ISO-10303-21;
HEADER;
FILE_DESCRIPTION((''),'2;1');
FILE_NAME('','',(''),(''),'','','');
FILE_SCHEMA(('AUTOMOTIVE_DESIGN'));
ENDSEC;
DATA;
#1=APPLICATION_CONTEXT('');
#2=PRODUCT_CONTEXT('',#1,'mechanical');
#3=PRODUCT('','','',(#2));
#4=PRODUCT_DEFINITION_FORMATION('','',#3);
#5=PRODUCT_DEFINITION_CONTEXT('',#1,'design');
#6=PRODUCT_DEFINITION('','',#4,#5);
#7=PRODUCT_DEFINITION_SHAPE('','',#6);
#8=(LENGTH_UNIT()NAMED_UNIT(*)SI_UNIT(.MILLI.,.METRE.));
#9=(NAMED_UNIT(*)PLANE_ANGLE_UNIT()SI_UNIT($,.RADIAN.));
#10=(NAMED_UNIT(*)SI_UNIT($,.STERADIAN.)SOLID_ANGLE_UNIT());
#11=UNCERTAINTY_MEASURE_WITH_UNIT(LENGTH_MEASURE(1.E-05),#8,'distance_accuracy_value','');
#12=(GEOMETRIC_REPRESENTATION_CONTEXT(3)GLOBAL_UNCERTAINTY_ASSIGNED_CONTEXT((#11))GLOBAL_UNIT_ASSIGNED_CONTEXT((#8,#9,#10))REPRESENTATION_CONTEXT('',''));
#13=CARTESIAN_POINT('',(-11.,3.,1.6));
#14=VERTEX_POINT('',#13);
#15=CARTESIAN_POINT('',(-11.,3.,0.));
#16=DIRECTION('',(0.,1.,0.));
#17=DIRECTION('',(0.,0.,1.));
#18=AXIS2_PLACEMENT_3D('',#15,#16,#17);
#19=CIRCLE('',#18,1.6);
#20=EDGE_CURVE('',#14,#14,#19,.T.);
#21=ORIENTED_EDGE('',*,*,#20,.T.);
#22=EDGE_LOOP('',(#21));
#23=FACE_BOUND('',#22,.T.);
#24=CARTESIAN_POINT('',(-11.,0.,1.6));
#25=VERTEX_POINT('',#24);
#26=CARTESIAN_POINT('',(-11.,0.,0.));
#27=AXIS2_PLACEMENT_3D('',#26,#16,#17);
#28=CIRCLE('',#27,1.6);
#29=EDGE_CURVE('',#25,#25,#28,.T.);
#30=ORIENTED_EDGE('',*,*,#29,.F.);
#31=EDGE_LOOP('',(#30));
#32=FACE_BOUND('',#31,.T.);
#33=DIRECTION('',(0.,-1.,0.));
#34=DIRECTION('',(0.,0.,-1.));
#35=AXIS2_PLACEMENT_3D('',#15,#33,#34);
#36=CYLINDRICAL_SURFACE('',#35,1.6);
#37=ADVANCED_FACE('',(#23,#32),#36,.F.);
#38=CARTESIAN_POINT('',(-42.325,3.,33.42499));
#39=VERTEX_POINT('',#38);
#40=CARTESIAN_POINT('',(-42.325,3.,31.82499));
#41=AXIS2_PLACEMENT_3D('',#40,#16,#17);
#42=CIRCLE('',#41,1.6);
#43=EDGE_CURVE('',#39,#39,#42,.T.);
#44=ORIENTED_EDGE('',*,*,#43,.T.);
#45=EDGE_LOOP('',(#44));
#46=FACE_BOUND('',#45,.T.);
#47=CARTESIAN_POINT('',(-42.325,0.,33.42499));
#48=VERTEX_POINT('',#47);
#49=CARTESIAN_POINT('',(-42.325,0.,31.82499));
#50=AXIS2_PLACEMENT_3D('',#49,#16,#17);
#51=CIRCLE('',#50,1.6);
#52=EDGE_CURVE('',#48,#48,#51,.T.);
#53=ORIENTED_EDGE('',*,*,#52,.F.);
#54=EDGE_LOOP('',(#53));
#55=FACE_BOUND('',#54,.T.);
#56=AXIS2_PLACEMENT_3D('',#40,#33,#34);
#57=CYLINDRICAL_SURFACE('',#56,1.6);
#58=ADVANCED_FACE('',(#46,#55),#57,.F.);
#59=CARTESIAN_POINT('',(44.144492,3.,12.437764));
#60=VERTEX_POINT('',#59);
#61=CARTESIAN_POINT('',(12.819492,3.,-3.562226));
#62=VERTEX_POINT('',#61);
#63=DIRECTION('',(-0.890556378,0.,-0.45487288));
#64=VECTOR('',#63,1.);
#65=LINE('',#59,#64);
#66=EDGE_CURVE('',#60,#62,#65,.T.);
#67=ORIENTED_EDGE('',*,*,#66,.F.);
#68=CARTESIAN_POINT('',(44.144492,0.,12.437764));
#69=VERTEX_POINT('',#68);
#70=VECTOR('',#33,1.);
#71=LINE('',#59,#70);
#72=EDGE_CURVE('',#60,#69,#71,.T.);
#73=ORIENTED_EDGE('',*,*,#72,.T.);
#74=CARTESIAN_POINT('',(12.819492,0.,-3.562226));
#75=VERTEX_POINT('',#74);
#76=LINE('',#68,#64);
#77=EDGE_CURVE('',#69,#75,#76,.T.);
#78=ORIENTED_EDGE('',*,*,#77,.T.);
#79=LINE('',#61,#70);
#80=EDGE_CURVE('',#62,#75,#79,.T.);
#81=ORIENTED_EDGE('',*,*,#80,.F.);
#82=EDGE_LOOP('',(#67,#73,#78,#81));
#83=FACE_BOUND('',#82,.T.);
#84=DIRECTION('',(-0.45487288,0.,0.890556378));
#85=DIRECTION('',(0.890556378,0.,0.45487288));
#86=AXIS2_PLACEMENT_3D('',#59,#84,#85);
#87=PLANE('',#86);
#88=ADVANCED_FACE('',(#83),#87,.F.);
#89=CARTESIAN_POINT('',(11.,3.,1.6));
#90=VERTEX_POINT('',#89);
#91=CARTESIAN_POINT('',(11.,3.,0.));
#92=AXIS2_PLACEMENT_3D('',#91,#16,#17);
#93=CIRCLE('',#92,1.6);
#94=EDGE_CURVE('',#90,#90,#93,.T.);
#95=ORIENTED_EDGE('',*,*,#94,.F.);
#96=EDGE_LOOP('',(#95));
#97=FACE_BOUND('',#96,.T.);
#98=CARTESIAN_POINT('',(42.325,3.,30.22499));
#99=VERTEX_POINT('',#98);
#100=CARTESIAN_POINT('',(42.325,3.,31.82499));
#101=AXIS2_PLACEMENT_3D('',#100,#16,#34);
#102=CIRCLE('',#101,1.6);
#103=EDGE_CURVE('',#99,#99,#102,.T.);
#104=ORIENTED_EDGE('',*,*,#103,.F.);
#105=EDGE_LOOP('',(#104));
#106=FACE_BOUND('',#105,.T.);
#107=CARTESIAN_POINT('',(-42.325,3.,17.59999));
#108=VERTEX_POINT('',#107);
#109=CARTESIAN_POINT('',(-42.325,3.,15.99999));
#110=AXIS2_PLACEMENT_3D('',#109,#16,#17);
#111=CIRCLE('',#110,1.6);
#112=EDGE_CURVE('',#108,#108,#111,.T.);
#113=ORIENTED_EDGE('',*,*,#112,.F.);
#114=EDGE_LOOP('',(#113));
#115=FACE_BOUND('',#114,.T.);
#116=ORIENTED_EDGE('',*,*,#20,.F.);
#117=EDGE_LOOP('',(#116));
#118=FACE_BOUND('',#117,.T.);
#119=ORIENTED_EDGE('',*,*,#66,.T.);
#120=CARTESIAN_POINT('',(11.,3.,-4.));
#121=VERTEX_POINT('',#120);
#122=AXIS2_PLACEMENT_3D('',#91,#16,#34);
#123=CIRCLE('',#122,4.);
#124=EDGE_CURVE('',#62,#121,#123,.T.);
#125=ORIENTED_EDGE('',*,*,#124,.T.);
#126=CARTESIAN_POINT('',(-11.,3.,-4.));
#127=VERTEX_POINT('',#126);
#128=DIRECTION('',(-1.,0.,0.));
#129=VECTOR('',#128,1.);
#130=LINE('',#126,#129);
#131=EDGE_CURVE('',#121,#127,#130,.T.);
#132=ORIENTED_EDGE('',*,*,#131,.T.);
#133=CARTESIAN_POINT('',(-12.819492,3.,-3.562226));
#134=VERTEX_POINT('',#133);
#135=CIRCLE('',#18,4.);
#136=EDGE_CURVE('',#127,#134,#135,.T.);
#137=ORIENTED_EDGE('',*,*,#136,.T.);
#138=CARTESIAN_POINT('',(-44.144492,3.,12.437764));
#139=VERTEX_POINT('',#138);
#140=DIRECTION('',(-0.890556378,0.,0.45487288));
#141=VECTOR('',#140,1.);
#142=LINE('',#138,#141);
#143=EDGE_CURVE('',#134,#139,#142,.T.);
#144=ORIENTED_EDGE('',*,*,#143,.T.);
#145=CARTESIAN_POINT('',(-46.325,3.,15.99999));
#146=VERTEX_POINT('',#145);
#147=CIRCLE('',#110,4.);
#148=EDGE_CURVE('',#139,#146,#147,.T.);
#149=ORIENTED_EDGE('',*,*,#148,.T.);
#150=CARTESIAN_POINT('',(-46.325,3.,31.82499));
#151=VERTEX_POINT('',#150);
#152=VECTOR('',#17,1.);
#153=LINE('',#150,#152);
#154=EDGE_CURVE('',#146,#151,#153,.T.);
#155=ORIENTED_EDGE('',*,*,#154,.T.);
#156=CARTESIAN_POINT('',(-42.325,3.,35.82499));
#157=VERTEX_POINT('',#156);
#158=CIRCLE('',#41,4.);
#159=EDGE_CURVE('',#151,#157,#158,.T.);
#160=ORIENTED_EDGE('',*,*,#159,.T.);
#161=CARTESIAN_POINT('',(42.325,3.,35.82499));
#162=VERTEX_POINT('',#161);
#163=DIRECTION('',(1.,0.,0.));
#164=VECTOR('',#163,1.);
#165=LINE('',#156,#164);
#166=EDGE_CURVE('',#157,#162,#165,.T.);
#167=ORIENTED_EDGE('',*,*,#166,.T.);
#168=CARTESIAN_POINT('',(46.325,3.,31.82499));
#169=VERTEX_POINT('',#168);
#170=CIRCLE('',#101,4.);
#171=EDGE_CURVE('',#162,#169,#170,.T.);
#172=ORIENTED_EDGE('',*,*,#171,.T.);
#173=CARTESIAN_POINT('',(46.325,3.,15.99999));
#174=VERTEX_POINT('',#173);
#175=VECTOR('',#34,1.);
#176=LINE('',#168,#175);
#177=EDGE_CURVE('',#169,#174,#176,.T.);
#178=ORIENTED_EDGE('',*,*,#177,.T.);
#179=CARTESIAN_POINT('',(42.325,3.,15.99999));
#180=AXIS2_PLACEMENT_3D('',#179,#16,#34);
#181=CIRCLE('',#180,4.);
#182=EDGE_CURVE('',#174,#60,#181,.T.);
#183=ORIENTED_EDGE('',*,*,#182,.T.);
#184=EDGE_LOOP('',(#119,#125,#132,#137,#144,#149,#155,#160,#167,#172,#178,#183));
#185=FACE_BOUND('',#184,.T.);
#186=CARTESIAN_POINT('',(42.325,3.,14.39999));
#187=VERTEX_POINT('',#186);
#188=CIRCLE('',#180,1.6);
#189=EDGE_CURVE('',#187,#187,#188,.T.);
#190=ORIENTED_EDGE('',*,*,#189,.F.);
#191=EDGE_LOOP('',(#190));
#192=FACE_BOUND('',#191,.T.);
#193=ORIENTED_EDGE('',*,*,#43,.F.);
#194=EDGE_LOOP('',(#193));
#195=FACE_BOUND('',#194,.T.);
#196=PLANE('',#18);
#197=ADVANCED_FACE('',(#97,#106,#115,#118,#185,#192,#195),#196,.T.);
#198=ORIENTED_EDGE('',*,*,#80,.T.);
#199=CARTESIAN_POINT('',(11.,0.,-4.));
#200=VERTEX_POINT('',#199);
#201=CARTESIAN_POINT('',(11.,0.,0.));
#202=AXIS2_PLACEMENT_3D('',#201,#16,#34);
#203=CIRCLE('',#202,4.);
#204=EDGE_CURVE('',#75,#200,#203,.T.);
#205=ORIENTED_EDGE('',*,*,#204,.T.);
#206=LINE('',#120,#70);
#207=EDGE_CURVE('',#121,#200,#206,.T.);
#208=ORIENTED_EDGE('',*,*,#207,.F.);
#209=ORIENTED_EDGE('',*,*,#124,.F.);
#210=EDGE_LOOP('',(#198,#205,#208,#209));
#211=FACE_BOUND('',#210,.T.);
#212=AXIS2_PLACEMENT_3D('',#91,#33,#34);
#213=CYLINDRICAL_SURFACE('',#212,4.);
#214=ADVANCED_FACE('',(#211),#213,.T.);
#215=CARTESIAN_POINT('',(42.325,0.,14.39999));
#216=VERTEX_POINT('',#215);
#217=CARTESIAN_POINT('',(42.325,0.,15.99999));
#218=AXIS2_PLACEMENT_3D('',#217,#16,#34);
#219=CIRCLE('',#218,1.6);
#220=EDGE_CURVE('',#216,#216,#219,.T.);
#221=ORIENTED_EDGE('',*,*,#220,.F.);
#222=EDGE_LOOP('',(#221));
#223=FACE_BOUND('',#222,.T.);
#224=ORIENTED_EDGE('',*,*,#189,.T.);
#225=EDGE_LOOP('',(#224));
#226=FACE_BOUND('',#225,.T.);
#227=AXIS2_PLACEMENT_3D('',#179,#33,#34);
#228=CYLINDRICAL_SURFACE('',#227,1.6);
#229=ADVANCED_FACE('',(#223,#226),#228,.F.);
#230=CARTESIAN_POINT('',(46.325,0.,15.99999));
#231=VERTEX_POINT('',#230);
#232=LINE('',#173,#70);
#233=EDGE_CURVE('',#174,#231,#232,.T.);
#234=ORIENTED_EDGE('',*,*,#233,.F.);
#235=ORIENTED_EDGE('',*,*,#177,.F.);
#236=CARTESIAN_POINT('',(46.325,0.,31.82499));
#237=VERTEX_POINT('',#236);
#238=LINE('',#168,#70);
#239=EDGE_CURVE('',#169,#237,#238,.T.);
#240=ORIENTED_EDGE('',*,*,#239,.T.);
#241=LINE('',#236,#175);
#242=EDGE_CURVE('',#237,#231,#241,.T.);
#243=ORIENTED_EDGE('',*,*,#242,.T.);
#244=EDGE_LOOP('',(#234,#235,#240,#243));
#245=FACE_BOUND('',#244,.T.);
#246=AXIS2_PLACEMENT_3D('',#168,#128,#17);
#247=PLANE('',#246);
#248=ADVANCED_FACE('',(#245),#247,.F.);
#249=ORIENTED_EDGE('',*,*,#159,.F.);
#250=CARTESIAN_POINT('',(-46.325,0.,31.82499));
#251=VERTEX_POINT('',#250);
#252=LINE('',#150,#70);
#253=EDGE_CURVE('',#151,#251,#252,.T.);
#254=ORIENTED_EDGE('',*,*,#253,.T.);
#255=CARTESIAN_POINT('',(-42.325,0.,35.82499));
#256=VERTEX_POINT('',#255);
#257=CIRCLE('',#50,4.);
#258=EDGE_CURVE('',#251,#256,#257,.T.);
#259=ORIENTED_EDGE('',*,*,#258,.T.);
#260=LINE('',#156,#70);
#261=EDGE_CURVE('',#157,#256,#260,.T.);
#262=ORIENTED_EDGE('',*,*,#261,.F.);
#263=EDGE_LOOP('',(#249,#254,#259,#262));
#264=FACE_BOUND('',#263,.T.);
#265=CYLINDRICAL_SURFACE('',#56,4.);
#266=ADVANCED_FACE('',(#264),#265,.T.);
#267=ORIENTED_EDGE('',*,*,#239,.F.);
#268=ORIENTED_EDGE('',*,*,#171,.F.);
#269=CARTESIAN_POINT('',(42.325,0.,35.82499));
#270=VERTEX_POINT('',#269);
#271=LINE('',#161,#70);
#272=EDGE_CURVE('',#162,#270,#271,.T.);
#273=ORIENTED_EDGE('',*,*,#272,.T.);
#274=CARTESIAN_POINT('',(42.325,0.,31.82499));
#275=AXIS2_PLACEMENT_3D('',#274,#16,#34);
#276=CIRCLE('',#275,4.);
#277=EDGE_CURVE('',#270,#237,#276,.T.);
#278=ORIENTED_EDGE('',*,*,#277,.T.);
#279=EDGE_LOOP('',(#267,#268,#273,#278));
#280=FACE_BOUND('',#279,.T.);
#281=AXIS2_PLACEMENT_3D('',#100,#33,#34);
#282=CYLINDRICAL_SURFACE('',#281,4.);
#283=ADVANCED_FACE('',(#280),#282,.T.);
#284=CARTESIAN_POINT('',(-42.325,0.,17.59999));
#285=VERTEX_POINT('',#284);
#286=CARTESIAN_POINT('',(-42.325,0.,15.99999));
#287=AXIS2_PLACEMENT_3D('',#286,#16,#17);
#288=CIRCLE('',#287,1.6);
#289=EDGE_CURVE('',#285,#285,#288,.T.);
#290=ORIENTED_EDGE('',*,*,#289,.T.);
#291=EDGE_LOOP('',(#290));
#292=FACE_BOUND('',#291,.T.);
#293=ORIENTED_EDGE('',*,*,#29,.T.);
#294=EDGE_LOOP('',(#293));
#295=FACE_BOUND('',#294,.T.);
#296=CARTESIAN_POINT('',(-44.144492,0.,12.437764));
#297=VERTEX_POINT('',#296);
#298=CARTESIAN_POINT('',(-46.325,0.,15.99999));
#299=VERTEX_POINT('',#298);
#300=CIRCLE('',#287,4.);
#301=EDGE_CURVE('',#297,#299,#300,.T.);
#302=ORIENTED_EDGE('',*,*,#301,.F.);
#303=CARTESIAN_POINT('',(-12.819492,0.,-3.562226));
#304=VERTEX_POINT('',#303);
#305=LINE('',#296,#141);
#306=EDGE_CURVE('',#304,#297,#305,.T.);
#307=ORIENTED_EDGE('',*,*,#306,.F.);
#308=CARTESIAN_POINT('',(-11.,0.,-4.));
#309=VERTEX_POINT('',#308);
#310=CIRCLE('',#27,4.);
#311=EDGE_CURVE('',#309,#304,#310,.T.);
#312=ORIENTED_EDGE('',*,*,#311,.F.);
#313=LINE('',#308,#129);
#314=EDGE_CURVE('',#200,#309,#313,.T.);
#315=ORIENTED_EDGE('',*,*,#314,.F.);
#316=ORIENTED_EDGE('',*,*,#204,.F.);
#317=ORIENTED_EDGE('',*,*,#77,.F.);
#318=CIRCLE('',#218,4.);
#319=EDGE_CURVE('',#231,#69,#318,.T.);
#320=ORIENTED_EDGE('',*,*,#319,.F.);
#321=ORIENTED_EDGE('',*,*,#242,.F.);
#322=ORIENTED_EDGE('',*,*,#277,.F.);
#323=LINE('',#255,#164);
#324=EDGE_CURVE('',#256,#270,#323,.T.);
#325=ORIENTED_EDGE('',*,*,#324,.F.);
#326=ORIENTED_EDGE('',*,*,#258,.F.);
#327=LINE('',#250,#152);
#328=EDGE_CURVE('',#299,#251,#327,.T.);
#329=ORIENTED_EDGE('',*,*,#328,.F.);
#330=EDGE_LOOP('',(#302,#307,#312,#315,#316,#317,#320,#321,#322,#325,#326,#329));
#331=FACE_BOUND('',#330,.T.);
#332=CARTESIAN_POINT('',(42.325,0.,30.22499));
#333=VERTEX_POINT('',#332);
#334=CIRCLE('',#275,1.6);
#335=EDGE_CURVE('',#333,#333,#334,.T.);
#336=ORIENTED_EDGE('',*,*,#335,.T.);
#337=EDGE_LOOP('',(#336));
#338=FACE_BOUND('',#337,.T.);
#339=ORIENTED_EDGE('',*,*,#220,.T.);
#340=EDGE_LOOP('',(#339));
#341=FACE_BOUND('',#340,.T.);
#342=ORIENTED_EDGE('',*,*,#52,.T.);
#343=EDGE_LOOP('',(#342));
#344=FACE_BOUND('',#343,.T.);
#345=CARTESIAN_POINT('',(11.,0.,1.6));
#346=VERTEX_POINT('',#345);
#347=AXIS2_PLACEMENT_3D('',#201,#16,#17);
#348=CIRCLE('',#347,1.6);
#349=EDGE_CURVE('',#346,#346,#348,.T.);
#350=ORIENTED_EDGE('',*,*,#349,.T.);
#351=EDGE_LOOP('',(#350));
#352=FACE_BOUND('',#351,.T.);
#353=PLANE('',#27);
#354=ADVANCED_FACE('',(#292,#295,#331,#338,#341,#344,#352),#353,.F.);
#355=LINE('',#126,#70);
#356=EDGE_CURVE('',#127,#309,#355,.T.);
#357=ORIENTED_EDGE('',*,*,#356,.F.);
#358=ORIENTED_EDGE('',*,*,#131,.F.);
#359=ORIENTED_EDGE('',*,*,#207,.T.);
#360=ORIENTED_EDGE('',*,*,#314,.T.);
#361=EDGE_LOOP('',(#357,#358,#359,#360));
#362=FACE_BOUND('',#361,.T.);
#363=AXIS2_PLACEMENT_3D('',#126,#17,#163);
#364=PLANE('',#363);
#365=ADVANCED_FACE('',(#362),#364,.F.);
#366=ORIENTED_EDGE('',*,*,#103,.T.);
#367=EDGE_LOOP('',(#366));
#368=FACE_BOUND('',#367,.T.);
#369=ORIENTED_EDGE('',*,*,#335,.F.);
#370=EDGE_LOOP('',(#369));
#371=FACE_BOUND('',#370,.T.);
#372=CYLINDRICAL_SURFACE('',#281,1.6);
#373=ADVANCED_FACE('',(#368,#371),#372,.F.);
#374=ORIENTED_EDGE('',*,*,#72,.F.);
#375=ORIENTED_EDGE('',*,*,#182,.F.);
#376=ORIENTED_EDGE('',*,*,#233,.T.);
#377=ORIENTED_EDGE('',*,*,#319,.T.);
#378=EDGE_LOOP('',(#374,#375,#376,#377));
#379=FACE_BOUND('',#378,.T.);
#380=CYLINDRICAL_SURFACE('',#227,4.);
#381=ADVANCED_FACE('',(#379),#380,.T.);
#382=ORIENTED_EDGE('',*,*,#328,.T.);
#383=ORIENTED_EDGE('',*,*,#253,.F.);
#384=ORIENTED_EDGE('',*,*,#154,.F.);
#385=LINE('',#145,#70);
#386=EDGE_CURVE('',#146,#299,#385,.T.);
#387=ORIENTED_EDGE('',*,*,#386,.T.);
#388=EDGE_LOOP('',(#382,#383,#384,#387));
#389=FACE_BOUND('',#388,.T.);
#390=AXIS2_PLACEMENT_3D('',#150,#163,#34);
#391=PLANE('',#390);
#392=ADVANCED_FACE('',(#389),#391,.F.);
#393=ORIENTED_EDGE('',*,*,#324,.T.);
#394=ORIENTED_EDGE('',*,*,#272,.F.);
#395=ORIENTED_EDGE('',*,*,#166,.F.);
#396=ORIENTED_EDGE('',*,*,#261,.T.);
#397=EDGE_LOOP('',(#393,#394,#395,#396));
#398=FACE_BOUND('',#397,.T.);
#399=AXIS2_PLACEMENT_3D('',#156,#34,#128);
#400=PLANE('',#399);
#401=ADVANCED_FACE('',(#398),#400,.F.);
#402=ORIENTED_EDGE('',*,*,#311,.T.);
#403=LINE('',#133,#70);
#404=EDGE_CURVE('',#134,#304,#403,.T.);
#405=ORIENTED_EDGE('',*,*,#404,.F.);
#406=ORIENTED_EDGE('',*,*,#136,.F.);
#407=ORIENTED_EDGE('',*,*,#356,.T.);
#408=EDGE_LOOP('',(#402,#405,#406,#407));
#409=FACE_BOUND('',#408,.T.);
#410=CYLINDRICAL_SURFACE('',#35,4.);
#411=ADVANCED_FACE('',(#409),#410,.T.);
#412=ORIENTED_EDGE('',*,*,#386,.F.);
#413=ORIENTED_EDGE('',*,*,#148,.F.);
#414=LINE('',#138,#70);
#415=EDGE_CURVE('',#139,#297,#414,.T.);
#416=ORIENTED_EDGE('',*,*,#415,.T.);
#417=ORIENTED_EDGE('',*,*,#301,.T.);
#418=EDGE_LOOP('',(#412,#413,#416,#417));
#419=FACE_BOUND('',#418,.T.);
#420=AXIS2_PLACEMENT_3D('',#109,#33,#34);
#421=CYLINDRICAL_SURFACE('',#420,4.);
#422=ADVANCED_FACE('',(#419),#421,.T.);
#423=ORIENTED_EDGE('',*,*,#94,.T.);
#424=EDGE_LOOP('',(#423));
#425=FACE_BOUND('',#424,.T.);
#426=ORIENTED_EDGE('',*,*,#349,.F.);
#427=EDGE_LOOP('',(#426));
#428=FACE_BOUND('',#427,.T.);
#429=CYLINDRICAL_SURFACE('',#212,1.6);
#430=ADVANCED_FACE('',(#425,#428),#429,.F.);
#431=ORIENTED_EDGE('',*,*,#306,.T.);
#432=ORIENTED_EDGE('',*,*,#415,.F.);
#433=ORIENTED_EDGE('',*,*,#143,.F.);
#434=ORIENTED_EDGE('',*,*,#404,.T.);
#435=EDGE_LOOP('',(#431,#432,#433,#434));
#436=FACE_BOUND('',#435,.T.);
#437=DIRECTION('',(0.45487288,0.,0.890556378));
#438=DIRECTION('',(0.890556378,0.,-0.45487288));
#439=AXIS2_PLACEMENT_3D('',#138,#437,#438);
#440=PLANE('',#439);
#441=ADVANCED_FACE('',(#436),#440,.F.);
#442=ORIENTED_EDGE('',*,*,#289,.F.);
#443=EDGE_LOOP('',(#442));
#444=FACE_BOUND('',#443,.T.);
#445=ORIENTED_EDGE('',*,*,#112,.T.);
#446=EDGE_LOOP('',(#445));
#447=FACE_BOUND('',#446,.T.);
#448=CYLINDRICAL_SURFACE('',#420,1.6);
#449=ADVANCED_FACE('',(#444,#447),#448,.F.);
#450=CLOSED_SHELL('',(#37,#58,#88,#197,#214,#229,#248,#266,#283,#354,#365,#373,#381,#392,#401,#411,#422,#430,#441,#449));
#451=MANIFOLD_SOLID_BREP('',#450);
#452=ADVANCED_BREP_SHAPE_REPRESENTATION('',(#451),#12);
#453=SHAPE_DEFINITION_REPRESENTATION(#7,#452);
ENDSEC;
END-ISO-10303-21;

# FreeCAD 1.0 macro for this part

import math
import FreeCAD as App
import Part
import Sketcher

V = App.Vector

doc = App.newDocument("Part")
body = doc.addObject("PartDesign::Body", "Body")

# Sketch on XZ plane
sketch1 = body.newObject("Sketcher::SketchObject", "Sketch")
sketch1.AttachmentSupport = (doc.getObject("XZ_Plane"), [""])
sketch1.MapMode = "FlatFace"
sketch1.addGeometry(Part.LineSegment(V(-46.3, 16, 0), V(-46.3, 31.8, 0)), False)
sketch1.addGeometry(Part.ArcOfCircle(Part.Circle(V(-42.3, 31.8, 0), V(0, 0, 1), 4), math.radians(90), math.radians(180)), False)
sketch1.addGeometry(Part.LineSegment(V(-42.3, 35.8, 0), V(42.3, 35.8, 0)), False)
sketch1.addGeometry(Part.ArcOfCircle(Part.Circle(V(42.3, 31.8, 0), V(0, 0, 1), 4), math.radians(0), math.radians(90)), False)
sketch1.addGeometry(Part.LineSegment(V(46.3, 31.8, 0), V(46.3, 16, 0)), False)
sketch1.addGeometry(Part.ArcOfCircle(Part.Circle(V(42.3, 16, 0), V(0, 0, 1), 4), math.radians(-63), math.radians(0)), False)
sketch1.addGeometry(Part.LineSegment(V(44.1, 12.4, 0), V(12.8, -3.6, 0)), False)
sketch1.addGeometry(Part.ArcOfCircle(Part.Circle(V(11, 0, 0), V(0, 0, 1), 4), math.radians(-90), math.radians(-63)), False)
sketch1.addGeometry(Part.LineSegment(V(11, -4, 0), V(-11, -4, 0)), False)
sketch1.addGeometry(Part.ArcOfCircle(Part.Circle(V(-11, 0, 0), V(0, 0, 1), 4), math.radians(-117), math.radians(-90)), False)
sketch1.addGeometry(Part.LineSegment(V(-12.8, -3.6, 0), V(-44.1, 12.4, 0)), False)
sketch1.addGeometry(Part.ArcOfCircle(Part.Circle(V(-42.3, 16, 0), V(0, 0, 1), 4), math.radians(180), math.radians(243)), False)
sketch1.addGeometry(Part.Circle(V(42.3, 31.8, 0), V(0, 0, 1), 1.6), False)
sketch1.addGeometry(Part.Circle(V(42.3, 16, 0), V(0, 0, 1), 1.6), False)
sketch1.addGeometry(Part.Circle(V(-42.3, 31.8, 0), V(0, 0, 1), 1.6), False)
sketch1.addGeometry(Part.Circle(V(-42.3, 16, 0), V(0, 0, 1), 1.6), False)
sketch1.addGeometry(Part.Circle(V(11, 0, 0), V(0, 0, 1), 1.6), False)
sketch1.addGeometry(Part.Circle(V(-11, 0, 0), V(0, 0, 1), 1.6), False)
sketch1.addConstraint(Sketcher.Constraint("Tangent", 0, 2, 1, 2))
sketch1.addConstraint(Sketcher.Constraint("Tangent", 1, 1, 2, 1))
sketch1.addConstraint(Sketcher.Constraint("Tangent", 2, 2, 3, 2))
sketch1.addConstraint(Sketcher.Constraint("Tangent", 3, 1, 4, 1))
sketch1.addConstraint(Sketcher.Constraint("Tangent", 4, 2, 5, 2))
sketch1.addConstraint(Sketcher.Constraint("Tangent", 5, 1, 6, 1))
sketch1.addConstraint(Sketcher.Constraint("Tangent", 6, 2, 7, 2))
sketch1.addConstraint(Sketcher.Constraint("Tangent", 7, 1, 8, 1))
sketch1.addConstraint(Sketcher.Constraint("Tangent", 8, 2, 9, 2))
sketch1.addConstraint(Sketcher.Constraint("Tangent", 9, 1, 10, 1))
sketch1.addConstraint(Sketcher.Constraint("Tangent", 10, 2, 11, 2))
sketch1.addConstraint(Sketcher.Constraint("Tangent", 11, 1, 0, 1))
sketch1.addConstraint(Sketcher.Constraint("Vertical", 0))
sketch1.addConstraint(Sketcher.Constraint("Horizontal", 2))
sketch1.addConstraint(Sketcher.Constraint("Vertical", 4))
sketch1.addConstraint(Sketcher.Constraint("Horizontal", 8))
sketch1.addConstraint(Sketcher.Constraint("Coincident", 12, 3, 3, 3))
sketch1.addConstraint(Sketcher.Constraint("Coincident", 13, 3, 5, 3))
sketch1.addConstraint(Sketcher.Constraint("Coincident", 14, 3, 1, 3))
sketch1.addConstraint(Sketcher.Constraint("Coincident", 15, 3, 11, 3))
sketch1.addConstraint(Sketcher.Constraint("Coincident", 16, 3, 7, 3))
sketch1.addConstraint(Sketcher.Constraint("Coincident", 17, 3, 9, 3))
sketch1.addConstraint(Sketcher.Constraint("Equal", 1, 3))
sketch1.addConstraint(Sketcher.Constraint("Equal", 3, 5))
sketch1.addConstraint(Sketcher.Constraint("Equal", 5, 7))
sketch1.addConstraint(Sketcher.Constraint("Equal", 7, 9))
sketch1.addConstraint(Sketcher.Constraint("Equal", 9, 11))
sketch1.addConstraint(Sketcher.Constraint("Equal", 12, 13))
sketch1.addConstraint(Sketcher.Constraint("Equal", 13, 14))
sketch1.addConstraint(Sketcher.Constraint("Equal", 14, 15))
sketch1.addConstraint(Sketcher.Constraint("Equal", 15, 16))
sketch1.addConstraint(Sketcher.Constraint("Equal", 16, 17))
sketch1.addConstraint(Sketcher.Constraint("Symmetric", 7, 3, 9, 3, -1, 1))
sketch1.addConstraint(Sketcher.Constraint("Symmetric", 5, 3, 11, 3, -2))
sketch1.addConstraint(Sketcher.Constraint("Radius", 1, 4.0))
sketch1.addConstraint(Sketcher.Constraint("Diameter", 12, 3.2))
sketch1.addConstraint(Sketcher.Constraint("DistanceX", 8, 2, 8, 1, 22.0))
sketch1.addConstraint(Sketcher.Constraint("DistanceX", 2, 1, 2, 2, 84.65))
sketch1.addConstraint(Sketcher.Constraint("DistanceY", 0, 1, 0, 2, 15.825))
sketch1.addConstraint(Sketcher.Constraint("Distance", 6, 35.17464))
pad1 = body.newObject("PartDesign::Pad", "Pad")
pad1.Profile = sketch1
pad1.Length = 3
pad1.Reversed = True

doc.recompute()
